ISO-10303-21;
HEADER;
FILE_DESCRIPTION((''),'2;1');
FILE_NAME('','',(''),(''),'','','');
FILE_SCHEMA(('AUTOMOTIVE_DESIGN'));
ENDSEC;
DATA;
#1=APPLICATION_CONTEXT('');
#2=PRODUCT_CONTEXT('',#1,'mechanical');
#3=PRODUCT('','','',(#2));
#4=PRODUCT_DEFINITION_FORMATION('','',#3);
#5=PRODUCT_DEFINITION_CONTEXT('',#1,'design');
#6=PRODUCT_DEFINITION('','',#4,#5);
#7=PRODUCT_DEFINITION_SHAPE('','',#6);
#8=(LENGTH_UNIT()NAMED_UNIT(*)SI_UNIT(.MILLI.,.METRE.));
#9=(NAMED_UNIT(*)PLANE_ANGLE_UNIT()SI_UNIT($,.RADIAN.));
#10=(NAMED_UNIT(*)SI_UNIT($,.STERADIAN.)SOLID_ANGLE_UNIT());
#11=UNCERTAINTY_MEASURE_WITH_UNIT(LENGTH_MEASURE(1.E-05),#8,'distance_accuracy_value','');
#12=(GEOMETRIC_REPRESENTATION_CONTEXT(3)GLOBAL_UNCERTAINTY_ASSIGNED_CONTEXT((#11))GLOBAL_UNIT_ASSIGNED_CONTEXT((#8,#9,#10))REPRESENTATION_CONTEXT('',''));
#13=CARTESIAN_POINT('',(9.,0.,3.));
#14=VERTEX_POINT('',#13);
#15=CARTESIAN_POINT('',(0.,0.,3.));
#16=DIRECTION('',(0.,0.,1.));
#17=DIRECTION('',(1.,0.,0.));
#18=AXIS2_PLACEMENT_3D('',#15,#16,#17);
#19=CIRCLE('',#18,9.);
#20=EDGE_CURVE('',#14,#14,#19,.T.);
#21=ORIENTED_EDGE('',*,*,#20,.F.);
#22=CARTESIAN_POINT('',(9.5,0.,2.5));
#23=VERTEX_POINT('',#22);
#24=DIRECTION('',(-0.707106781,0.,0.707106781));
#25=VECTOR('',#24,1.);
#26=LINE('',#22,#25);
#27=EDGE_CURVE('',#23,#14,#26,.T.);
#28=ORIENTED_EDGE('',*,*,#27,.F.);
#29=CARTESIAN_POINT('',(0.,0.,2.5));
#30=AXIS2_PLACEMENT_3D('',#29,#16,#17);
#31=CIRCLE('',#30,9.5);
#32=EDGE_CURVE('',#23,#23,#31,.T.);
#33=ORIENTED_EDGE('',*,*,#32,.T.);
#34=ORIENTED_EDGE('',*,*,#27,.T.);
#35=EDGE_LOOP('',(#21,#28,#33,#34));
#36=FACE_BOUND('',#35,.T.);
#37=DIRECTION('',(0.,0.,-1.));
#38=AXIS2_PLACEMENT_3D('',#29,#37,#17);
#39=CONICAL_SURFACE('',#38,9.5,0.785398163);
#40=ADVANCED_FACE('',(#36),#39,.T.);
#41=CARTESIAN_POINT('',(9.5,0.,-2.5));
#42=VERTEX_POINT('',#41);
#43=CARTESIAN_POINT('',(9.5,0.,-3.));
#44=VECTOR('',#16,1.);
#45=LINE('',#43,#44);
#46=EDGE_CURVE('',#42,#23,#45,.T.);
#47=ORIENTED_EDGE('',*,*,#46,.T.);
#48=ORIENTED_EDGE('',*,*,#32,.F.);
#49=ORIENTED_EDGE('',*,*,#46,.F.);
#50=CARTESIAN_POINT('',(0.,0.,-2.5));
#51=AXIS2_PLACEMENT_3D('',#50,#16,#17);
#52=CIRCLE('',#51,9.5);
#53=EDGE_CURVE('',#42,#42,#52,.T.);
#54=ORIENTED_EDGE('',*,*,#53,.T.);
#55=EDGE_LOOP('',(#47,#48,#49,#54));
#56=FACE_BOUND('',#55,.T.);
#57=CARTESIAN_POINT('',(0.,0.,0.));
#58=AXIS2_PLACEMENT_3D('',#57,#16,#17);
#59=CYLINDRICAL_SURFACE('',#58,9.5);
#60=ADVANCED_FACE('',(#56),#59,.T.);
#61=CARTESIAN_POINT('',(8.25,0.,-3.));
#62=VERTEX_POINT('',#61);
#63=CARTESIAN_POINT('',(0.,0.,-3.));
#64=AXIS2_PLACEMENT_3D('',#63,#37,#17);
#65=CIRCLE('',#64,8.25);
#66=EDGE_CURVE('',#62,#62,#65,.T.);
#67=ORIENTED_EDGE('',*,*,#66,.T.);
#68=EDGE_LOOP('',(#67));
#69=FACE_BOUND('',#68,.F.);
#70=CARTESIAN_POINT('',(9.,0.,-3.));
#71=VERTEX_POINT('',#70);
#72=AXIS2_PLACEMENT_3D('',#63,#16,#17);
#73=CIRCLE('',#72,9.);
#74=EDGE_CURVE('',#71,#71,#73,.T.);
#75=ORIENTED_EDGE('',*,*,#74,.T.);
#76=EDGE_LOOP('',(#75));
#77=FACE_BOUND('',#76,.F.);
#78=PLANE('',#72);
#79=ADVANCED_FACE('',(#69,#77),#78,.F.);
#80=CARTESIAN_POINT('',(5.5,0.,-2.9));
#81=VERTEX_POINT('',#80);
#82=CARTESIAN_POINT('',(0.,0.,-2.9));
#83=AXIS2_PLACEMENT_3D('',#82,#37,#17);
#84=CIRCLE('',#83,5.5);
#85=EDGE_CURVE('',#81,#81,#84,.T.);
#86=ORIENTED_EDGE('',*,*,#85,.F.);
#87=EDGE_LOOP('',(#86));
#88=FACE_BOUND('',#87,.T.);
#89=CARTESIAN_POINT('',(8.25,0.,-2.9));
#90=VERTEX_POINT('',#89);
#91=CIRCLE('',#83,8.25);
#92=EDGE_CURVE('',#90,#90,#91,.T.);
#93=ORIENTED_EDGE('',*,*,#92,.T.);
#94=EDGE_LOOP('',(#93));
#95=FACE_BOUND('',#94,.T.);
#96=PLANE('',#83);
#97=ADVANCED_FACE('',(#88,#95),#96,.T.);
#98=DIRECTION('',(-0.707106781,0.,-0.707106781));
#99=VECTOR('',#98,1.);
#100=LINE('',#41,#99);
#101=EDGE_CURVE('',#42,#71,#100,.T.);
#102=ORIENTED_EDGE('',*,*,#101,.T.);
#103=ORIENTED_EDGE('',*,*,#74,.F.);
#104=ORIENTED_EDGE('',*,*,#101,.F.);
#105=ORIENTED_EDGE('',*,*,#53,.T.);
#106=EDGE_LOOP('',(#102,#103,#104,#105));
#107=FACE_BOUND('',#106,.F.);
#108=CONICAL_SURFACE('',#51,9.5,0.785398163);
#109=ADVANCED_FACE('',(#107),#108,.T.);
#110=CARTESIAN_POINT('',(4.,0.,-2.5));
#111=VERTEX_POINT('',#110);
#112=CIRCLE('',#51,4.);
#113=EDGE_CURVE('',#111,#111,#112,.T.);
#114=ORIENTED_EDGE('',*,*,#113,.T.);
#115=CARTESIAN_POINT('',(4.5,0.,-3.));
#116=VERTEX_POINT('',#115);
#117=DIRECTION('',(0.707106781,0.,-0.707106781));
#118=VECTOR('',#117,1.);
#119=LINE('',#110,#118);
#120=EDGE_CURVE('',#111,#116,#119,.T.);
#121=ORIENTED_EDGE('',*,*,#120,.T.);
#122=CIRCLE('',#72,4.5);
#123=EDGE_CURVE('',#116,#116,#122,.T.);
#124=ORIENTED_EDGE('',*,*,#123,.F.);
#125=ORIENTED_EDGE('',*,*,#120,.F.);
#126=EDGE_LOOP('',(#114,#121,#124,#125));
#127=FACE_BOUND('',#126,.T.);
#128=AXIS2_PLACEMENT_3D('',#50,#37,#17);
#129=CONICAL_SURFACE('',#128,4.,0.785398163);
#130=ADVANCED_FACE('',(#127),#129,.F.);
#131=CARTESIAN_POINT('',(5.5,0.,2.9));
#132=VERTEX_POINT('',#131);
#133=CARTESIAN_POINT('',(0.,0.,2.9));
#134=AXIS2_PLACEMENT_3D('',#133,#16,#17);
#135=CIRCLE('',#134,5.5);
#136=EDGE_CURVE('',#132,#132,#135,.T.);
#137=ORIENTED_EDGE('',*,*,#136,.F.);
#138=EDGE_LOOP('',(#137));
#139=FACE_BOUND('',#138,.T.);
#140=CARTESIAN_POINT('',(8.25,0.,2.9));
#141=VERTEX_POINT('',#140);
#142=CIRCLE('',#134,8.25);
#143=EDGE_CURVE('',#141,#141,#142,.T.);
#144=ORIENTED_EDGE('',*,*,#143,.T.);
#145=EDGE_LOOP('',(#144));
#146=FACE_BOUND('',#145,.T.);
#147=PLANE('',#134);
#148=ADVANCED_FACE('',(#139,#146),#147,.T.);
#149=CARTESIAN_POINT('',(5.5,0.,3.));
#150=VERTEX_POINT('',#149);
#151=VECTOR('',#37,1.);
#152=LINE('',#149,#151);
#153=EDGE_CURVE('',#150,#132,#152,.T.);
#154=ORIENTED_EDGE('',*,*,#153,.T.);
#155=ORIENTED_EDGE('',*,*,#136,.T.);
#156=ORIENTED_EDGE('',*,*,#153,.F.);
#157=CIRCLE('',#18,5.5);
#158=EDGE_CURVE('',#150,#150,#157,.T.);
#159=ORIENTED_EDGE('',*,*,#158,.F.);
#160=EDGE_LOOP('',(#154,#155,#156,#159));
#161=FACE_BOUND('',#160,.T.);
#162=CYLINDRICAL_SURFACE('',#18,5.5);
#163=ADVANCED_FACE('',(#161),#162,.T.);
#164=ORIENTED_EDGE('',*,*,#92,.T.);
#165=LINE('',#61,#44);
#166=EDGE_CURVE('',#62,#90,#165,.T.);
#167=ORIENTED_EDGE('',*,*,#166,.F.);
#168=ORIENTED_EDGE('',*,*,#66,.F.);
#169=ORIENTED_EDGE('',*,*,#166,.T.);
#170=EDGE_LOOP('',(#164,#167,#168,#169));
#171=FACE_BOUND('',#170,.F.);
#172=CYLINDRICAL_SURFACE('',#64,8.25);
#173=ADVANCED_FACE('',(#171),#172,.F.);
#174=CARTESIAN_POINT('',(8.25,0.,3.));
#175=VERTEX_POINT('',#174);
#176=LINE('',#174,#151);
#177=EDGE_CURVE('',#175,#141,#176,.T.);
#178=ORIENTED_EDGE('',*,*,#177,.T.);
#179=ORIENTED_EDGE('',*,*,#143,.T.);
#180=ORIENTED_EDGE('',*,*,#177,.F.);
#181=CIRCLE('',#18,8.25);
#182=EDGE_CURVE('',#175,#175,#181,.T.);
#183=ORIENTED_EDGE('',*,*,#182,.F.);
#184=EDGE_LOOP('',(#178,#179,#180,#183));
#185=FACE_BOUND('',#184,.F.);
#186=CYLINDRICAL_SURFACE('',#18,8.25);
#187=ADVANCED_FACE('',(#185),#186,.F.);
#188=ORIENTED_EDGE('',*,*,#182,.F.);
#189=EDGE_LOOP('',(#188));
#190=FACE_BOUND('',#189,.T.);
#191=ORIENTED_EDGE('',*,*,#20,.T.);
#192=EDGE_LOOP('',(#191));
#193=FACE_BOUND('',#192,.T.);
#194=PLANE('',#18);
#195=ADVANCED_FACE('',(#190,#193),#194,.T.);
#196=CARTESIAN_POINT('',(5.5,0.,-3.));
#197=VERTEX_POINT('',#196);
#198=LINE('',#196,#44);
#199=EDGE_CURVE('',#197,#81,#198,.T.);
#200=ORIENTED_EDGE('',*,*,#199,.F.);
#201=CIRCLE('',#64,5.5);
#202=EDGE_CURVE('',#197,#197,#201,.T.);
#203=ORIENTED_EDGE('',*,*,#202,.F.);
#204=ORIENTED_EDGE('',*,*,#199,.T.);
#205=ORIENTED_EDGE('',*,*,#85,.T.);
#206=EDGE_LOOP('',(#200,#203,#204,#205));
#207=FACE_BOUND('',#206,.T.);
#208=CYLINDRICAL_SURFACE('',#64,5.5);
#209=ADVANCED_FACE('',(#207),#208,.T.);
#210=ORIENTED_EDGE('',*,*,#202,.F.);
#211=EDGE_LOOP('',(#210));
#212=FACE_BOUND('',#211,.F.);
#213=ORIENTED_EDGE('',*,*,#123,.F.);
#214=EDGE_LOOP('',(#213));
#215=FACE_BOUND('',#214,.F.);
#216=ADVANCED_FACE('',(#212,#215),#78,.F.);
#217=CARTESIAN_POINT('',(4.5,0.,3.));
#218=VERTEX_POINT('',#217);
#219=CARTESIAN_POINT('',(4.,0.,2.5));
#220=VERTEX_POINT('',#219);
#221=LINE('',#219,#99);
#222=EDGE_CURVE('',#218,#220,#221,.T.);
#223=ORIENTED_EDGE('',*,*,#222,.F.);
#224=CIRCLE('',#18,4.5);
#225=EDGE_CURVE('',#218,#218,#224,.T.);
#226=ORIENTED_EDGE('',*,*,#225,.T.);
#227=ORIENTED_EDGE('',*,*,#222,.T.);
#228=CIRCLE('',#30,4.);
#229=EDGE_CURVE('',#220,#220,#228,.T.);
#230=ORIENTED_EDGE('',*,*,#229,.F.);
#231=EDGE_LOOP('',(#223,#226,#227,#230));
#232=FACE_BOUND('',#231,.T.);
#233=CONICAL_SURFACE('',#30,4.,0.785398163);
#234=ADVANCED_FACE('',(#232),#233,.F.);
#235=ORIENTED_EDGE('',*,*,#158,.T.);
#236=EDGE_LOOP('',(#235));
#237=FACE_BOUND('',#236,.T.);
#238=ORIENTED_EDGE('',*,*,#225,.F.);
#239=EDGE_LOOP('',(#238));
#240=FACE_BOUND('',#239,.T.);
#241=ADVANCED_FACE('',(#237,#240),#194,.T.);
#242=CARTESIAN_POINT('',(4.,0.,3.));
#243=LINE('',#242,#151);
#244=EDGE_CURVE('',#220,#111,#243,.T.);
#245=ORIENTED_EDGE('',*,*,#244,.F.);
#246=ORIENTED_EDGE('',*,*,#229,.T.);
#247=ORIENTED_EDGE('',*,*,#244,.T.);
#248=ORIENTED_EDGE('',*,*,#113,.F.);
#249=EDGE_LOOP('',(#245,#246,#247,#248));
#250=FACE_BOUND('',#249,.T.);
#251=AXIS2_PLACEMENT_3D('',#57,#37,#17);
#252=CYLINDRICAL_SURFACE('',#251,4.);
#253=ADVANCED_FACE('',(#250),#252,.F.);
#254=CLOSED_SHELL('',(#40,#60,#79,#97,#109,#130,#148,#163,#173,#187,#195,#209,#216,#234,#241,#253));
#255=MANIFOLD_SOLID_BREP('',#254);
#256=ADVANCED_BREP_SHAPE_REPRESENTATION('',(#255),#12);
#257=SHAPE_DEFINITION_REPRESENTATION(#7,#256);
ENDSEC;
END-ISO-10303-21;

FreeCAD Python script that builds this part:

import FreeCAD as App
import Part
import Sketcher

V = App.Vector


def edges_at(feature, points):
    """Names of the edges that pass closest to the given points."""
    edges = feature.Shape.Edges
    near = lambda p: min(range(len(edges)), key=lambda i: edges[i].distToShape(Part.Vertex(*p))[0])
    return sorted({f"Edge{near(p) + 1}" for p in points})

doc = App.newDocument("Part")
body = doc.addObject("PartDesign::Body", "Body")

# Sketch on XY plane
sketch1 = body.newObject("Sketcher::SketchObject", "Sketch")
sketch1.AttachmentSupport = (doc.getObject("XY_Plane"), [""])
sketch1.MapMode = "FlatFace"
sketch1.addGeometry(Part.Circle(V(0, 0, 0), V(0, 0, 1), 9.5), False)
sketch1.addGeometry(Part.Circle(V(0, 0, 0), V(0, 0, 1), 4), False)
sketch1.addConstraint(Sketcher.Constraint("Coincident", 0, 3, -1, 1))
sketch1.addConstraint(Sketcher.Constraint("Coincident", 1, 3, -1, 1))
sketch1.addConstraint(Sketcher.Constraint("Diameter", 0, 19.0))
sketch1.addConstraint(Sketcher.Constraint("Diameter", 1, 8.0))
pad1 = body.newObject("PartDesign::Pad", "Pad")
pad1.Profile = sketch1
pad1.Length = 6
pad1.Midplane = True
doc.recompute()

chamfer = body.newObject("PartDesign::Chamfer", "Chamfer")
chamfer.Base = (pad1, edges_at(pad1, [
    (-9.5, 0, 3),
    (-4, 0, 3),
    (-9.5, 0, -3),
    (-4, 0, -3),
]))
chamfer.Size = 0.5

# Sketch on XY plane
sketch2 = body.newObject("Sketcher::SketchObject", "Sketch001")
sketch2.AttachmentSupport = (doc.getObject("XY_Plane"), [""])
sketch2.MapMode = "FlatFace"
sketch2.AttachmentOffset = App.Placement(V(0, 0, -3), App.Rotation())
sketch2.addGeometry(Part.Circle(V(0, 0, 0), V(0, 0, 1), 8), False)
sketch2.addGeometry(Part.Circle(V(0, 0, 0), V(0, 0, 1), 6), False)
sketch2.addConstraint(Sketcher.Constraint("Coincident", 0, 3, -1, 1))
sketch2.addConstraint(Sketcher.Constraint("Coincident", 1, 3, -1, 1))
sketch2.addConstraint(Sketcher.Constraint("Diameter", 1, 11.0))
sketch2.addConstraint(Sketcher.Constraint("Diameter", 0, 16.5))
pocket1 = body.newObject("PartDesign::Pocket", "Pocket")
pocket1.Profile = sketch2
pocket1.Length = 0.1
pocket1.Reversed = True

# Sketch on XY plane
sketch3 = body.newObject("Sketcher::SketchObject", "Sketch002")
sketch3.AttachmentSupport = (doc.getObject("XY_Plane"), [""])
sketch3.MapMode = "FlatFace"
sketch3.AttachmentOffset = App.Placement(V(0, 0, 3), App.Rotation())
sketch3.addGeometry(Part.Circle(V(0, 0, 0), V(0, 0, 1), 8), False)
sketch3.addGeometry(Part.Circle(V(0, 0, 0), V(0, 0, 1), 6), False)
sketch3.addConstraint(Sketcher.Constraint("Coincident", 0, 3, -1, 1))
sketch3.addConstraint(Sketcher.Constraint("Coincident", 1, 3, -1, 1))
sketch3.addConstraint(Sketcher.Constraint("Diameter", 1, 11.0))
sketch3.addConstraint(Sketcher.Constraint("Diameter", 0, 16.5))
pocket2 = body.newObject("PartDesign::Pocket", "Pocket001")
pocket2.Profile = sketch3
pocket2.Length = 0.1

doc.recompute()
